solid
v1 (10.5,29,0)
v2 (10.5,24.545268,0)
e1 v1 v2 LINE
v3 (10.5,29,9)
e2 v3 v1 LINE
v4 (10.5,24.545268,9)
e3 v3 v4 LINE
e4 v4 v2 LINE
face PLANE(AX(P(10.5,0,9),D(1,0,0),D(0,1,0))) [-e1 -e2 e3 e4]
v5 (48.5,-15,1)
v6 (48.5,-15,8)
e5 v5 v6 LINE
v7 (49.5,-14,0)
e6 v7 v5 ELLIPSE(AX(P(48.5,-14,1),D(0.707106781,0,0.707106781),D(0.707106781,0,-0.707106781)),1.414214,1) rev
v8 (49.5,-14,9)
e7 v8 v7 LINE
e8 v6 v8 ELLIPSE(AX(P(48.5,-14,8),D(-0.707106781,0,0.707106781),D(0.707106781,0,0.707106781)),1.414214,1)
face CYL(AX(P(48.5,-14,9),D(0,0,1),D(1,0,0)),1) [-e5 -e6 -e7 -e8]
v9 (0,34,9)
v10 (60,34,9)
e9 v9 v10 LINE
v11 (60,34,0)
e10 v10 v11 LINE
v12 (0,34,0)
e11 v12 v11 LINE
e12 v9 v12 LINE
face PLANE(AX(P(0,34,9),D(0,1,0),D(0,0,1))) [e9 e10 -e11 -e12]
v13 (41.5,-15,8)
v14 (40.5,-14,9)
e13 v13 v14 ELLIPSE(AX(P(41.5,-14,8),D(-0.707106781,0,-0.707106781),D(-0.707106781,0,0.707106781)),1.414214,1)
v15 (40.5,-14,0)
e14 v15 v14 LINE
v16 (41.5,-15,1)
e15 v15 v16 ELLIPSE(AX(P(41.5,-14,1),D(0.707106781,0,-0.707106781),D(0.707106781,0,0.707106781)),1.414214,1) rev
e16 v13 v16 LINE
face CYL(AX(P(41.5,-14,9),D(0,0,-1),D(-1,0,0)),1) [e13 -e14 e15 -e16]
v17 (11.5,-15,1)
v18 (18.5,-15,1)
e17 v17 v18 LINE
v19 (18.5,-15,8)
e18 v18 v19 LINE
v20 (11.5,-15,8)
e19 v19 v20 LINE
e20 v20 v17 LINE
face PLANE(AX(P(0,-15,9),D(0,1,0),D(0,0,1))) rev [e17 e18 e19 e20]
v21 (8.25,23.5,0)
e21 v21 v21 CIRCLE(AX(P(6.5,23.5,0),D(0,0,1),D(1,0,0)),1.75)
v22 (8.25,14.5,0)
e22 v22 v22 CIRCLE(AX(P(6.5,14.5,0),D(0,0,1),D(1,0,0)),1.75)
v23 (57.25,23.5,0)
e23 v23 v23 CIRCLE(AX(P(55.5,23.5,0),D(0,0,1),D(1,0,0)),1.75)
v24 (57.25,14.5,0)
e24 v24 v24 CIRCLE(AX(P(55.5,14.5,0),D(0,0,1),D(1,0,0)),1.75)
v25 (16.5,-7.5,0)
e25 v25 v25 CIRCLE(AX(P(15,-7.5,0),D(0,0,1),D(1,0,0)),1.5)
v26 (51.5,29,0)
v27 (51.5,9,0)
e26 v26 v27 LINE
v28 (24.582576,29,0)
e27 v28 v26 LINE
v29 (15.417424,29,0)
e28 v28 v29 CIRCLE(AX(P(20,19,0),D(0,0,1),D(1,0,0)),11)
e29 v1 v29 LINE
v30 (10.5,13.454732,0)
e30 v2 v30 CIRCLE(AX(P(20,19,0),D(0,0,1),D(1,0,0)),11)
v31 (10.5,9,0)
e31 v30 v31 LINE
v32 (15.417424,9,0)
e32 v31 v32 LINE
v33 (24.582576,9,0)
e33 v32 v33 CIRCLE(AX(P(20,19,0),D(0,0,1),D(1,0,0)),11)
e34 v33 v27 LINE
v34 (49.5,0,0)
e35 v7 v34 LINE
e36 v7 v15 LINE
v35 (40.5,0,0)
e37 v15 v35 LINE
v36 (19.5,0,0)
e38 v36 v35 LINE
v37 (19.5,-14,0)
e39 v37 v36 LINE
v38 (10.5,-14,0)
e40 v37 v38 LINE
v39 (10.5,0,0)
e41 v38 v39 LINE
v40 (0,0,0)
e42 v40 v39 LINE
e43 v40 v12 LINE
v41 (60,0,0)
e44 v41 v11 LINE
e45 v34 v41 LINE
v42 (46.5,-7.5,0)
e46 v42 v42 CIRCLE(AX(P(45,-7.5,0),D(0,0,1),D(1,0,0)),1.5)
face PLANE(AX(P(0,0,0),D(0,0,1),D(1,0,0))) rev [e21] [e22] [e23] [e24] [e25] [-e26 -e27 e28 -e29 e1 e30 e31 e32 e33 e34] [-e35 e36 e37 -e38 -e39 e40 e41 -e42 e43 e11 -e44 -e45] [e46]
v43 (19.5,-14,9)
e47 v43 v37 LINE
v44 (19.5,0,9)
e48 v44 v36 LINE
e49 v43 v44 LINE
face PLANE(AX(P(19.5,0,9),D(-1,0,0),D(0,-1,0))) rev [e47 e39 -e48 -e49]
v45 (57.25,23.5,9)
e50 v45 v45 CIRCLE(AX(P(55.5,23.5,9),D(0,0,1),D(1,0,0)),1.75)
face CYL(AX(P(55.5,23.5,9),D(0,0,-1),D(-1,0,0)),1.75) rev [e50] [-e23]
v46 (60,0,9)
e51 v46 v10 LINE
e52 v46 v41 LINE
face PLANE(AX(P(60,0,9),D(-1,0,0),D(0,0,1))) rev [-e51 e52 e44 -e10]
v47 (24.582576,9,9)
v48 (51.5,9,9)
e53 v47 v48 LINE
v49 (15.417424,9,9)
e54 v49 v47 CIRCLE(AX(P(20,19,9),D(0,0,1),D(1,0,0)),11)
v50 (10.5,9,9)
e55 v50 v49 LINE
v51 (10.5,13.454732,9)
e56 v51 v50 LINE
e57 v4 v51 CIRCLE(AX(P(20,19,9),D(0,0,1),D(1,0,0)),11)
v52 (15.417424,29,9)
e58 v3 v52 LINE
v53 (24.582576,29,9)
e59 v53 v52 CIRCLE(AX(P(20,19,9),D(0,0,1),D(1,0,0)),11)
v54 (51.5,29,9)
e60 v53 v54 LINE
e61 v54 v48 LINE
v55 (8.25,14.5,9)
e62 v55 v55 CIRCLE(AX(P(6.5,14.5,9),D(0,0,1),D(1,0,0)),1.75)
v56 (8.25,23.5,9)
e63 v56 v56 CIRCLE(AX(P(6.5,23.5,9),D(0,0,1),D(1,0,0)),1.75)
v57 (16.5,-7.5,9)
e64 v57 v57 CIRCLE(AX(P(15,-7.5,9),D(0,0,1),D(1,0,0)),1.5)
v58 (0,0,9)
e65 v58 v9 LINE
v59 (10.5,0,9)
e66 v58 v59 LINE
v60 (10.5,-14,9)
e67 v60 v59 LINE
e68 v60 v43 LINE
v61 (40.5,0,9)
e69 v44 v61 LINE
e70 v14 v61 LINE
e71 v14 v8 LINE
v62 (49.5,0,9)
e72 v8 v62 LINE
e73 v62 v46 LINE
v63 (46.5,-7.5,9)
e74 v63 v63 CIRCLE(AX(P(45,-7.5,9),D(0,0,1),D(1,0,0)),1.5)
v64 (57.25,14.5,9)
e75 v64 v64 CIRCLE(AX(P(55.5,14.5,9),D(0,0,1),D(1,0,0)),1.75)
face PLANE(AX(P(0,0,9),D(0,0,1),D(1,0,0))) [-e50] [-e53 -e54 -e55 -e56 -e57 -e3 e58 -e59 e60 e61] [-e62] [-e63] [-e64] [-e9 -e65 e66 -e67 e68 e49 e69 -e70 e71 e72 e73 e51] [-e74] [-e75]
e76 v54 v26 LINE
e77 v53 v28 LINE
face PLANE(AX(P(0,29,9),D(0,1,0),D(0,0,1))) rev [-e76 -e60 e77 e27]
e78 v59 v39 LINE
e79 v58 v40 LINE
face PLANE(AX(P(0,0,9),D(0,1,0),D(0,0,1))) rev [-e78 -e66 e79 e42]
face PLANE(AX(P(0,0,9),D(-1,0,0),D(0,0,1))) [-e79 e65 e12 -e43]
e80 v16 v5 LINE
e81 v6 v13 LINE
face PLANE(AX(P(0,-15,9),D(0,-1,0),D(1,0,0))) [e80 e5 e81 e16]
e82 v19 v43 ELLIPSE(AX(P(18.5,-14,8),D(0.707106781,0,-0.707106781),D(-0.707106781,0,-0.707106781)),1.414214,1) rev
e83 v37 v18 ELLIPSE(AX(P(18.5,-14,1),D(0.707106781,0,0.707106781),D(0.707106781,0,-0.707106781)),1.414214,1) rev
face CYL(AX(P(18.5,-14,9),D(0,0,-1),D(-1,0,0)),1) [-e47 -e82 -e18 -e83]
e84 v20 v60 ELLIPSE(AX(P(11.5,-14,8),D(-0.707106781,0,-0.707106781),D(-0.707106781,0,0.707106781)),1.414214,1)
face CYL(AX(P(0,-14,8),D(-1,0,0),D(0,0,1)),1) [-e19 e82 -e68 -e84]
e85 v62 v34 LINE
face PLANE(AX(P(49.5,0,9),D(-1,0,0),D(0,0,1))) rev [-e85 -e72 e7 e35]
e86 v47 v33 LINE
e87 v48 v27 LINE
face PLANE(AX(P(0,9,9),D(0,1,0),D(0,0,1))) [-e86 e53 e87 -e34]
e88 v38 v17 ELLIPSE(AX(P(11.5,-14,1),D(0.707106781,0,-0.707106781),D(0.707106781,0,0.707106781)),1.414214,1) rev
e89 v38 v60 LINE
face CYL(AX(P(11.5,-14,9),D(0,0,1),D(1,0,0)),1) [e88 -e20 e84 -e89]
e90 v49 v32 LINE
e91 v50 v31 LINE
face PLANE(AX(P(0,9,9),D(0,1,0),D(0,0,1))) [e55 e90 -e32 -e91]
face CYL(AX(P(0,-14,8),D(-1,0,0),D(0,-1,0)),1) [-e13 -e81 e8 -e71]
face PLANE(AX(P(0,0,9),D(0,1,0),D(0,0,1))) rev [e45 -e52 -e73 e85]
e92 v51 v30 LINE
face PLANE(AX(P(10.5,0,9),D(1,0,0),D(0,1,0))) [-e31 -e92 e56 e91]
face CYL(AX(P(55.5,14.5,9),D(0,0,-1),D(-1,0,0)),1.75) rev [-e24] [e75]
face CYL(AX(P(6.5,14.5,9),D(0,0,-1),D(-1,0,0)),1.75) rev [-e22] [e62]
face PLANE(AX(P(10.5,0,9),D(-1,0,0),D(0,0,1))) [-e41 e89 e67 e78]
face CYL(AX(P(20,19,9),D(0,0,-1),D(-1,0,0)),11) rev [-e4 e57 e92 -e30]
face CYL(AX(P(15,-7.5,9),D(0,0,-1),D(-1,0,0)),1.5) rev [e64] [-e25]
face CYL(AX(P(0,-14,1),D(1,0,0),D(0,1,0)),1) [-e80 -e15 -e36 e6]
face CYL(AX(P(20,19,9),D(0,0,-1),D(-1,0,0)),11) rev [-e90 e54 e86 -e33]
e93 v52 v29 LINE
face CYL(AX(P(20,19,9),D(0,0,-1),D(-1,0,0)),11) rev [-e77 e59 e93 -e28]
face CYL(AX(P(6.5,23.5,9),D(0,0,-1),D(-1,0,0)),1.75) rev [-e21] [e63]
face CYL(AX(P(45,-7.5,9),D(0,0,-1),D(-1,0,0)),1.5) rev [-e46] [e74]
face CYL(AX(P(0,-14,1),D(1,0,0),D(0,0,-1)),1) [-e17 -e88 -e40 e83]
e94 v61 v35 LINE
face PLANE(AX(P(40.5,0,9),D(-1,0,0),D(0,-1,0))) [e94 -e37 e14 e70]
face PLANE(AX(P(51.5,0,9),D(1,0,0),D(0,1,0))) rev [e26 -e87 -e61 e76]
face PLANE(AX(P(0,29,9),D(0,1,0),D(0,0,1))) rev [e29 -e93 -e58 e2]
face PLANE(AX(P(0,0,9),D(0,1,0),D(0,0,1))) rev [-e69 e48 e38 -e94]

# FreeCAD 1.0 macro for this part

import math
import FreeCAD as App
import Part
import Sketcher
Q = App.Units.Quantity


def edges_at(feature, points):
    """Names of the edges that pass closest to the given points."""
    edges = feature.Shape.Edges
    near = lambda p: min(range(len(edges)), key=lambda i: edges[i].distToShape(Part.Vertex(*p))[0])
    return sorted({f"Edge{near(p) + 1}" for p in points})


def add_polygon(sketch, points):
    """Adds a closed chain of lines whose ends are joined by coincident constraints."""
    first, n = sketch.GeometryCount, len(points)
    for a, b in zip(points, points[1:] + points[:1]):
        sketch.addGeometry(Part.LineSegment(App.Vector(*a, 0), App.Vector(*b, 0)), False)
    for i in range(n):
        sketch.addConstraint(Sketcher.Constraint("Coincident", first + i, 2, first + (i + 1) % n, 1))

doc = App.newDocument("Part")
params = doc.addObject("Spreadsheet::Sheet", "Params")
for row, (alias, value) in enumerate([
    ("sketch1_diameter", "3 mm"),
    ("sketch1_radius", "11 mm"),
    ("sketch1_diameter2", "3.5 mm"),
    ("sketch1_width", "9 mm"),
    ("sketch1_width2", "21 mm"),
    ("pad1_length", "9 mm"),
    ("fillet_radius", "1 mm"),
], start=1):
    params.set(f"A{row}", alias)
    params.set(f"B{row}", "=" + value)
    params.setAlias(f"B{row}", alias)

body = doc.addObject("PartDesign::Body", "Body")

# Sketch on XY plane
sketch1 = body.newObject("Sketcher::SketchObject", "Sketch")
sketch1.AttachmentSupport = (doc.getObject("XY_Plane"), [""])
sketch1.MapMode = "FlatFace"
add_polygon(sketch1, [(0, 34), (0, 0), (10.5, 0), (10.5, -15), (19.5, -15), (19.5, 0), (40.5, 0), (40.5, -15), (49.5, -15), (49.5, 0), (60, 0), (60, 34)])  # lines 0-11
sketch1.addGeometry(Part.Circle(App.Vector(15, -7.5, 0), App.Vector(0, 0, 1), 1.5), False)  # 12
sketch1.addGeometry(Part.Circle(App.Vector(45, -7.5, 0), App.Vector(0, 0, 1), 1.5), False)  # 13
sketch1.addGeometry(Part.Circle(App.Vector(6.5, 14.5, 0), App.Vector(0, 0, 1), 1.75), False)  # 14
sketch1.addGeometry(Part.ArcOfCircle(Part.Circle(App.Vector(20, 19, 0), App.Vector(0, 0, 1), 11), math.radians(149.727359), math.radians(210.272641)), False)  # 15
sketch1.addGeometry(Part.LineSegment(App.Vector(10.5, 24.545268, 0), App.Vector(10.5, 29, 0)), False)  # 16
sketch1.addGeometry(Part.LineSegment(App.Vector(10.5, 29, 0), App.Vector(15.417424, 29, 0)), False)  # 17
sketch1.addGeometry(Part.ArcOfCircle(Part.Circle(App.Vector(20, 19, 0), App.Vector(0, 0, 1), 11), math.radians(65.380023), math.radians(114.619977)), False)  # 18
sketch1.addGeometry(Part.LineSegment(App.Vector(24.582576, 29, 0), App.Vector(51.5, 29, 0)), False)  # 19
sketch1.addGeometry(Part.LineSegment(App.Vector(51.5, 29, 0), App.Vector(51.5, 9, 0)), False)  # 20
sketch1.addGeometry(Part.LineSegment(App.Vector(51.5, 9, 0), App.Vector(24.582576, 9, 0)), False)  # 21
sketch1.addGeometry(Part.ArcOfCircle(Part.Circle(App.Vector(20, 19, 0), App.Vector(0, 0, 1), 11), math.radians(-114.619977), math.radians(-65.380023)), False)  # 22
sketch1.addGeometry(Part.LineSegment(App.Vector(15.417424, 9, 0), App.Vector(10.5, 9, 0)), False)  # 23
sketch1.addGeometry(Part.LineSegment(App.Vector(10.5, 9, 0), App.Vector(10.5, 13.454732, 0)), False)  # 24
sketch1.addGeometry(Part.Circle(App.Vector(6.5, 23.5, 0), App.Vector(0, 0, 1), 1.75), False)  # 25
sketch1.addGeometry(Part.Circle(App.Vector(55.5, 14.5, 0), App.Vector(0, 0, 1), 1.75), False)  # 26
sketch1.addGeometry(Part.Circle(App.Vector(55.5, 23.5, 0), App.Vector(0, 0, 1), 1.75), False)  # 27
sketch1.addConstraint(Sketcher.Constraint("Coincident", 15, 1, 16, 1))
sketch1.addConstraint(Sketcher.Constraint("Coincident", 16, 2, 17, 1))
sketch1.addConstraint(Sketcher.Constraint("Coincident", 17, 2, 18, 2))
sketch1.addConstraint(Sketcher.Constraint("Coincident", 18, 1, 19, 1))
sketch1.addConstraint(Sketcher.Constraint("Coincident", 19, 2, 20, 1))
sketch1.addConstraint(Sketcher.Constraint("Coincident", 20, 2, 21, 1))
sketch1.addConstraint(Sketcher.Constraint("Coincident", 21, 2, 22, 2))
sketch1.addConstraint(Sketcher.Constraint("Coincident", 22, 1, 23, 1))
sketch1.addConstraint(Sketcher.Constraint("Coincident", 23, 2, 24, 1))
sketch1.addConstraint(Sketcher.Constraint("Coincident", 24, 2, 15, 2))
sketch1.addConstraint(Sketcher.Constraint("Vertical", 0))
sketch1.addConstraint(Sketcher.Constraint("Horizontal", 1))
sketch1.addConstraint(Sketcher.Constraint("Vertical", 2))
sketch1.addConstraint(Sketcher.Constraint("Horizontal", 3))
sketch1.addConstraint(Sketcher.Constraint("Vertical", 4))
sketch1.addConstraint(Sketcher.Constraint("Horizontal", 5))
sketch1.addConstraint(Sketcher.Constraint("Vertical", 6))
sketch1.addConstraint(Sketcher.Constraint("Horizontal", 7))
sketch1.addConstraint(Sketcher.Constraint("Vertical", 8))
sketch1.addConstraint(Sketcher.Constraint("Horizontal", 9))
sketch1.addConstraint(Sketcher.Constraint("Vertical", 10))
sketch1.addConstraint(Sketcher.Constraint("Horizontal", 11))
sketch1.addConstraint(Sketcher.Constraint("Vertical", 16))
sketch1.addConstraint(Sketcher.Constraint("Horizontal", 17))
sketch1.addConstraint(Sketcher.Constraint("Horizontal", 19))
sketch1.addConstraint(Sketcher.Constraint("Vertical", 20))
sketch1.addConstraint(Sketcher.Constraint("Horizontal", 21))
sketch1.addConstraint(Sketcher.Constraint("Horizontal", 23))
sketch1.addConstraint(Sketcher.Constraint("Vertical", 24))
sketch1.addConstraint(Sketcher.Constraint("Coincident", 0, 2, -1, 1))
sketch1.addConstraint(Sketcher.Constraint("Coincident", 18, 3, 15, 3))
sketch1.addConstraint(Sketcher.Constraint("Coincident", 22, 3, 15, 3))
sketch1.addConstraint(Sketcher.Constraint("Equal", 12, 13))
sketch1.addConstraint(Sketcher.Constraint("Equal", 15, 18))
sketch1.addConstraint(Sketcher.Constraint("Equal", 18, 22))
sketch1.addConstraint(Sketcher.Constraint("Equal", 14, 25))
sketch1.addConstraint(Sketcher.Constraint("Equal", 25, 26))
sketch1.addConstraint(Sketcher.Constraint("Equal", 26, 27))
sketch1.addConstraint(Sketcher.Constraint("PointOnObject", 4, 2, -1))
sketch1.addConstraint(Sketcher.Constraint("PointOnObject", 8, 2, -1))
sketch1.addConstraint(Sketcher.Constraint("Horizontal", 12, 3, 13, 3))
sketch1.addConstraint(Sketcher.Constraint("Horizontal", 14, 3, 26, 3))
sketch1.addConstraint(Sketcher.Constraint("Horizontal", 25, 3, 27, 3))
sketch1.addConstraint(Sketcher.Constraint("Horizontal", 3, 2, 6, 2))
sketch1.addConstraint(Sketcher.Constraint("Horizontal", 17, 2, 18, 1))
sketch1.addConstraint(Sketcher.Constraint("Horizontal", 21, 2, 22, 1))
sketch1.addConstraint(Sketcher.Constraint("Vertical", 14, 3, 25, 3))
sketch1.addConstraint(Sketcher.Constraint("Vertical", 26, 3, 27, 3))
sketch1.addConstraint(Sketcher.Constraint("Vertical", 2, 2, 15, 1))
sketch1.addConstraint(Sketcher.Constraint("Vertical", 18, 1, 21, 2))
sketch1.addConstraint(Sketcher.Constraint("Vertical", 16, 2, 23, 2))
sketch1.addConstraint(Sketcher.Constraint("Equal", 3, 7))
sketch1.addConstraint(Sketcher.Constraint("Equal", 1, 9))
sketch1.addConstraint(Sketcher.Constraint("Diameter", 12, Q("3 mm")))
sketch1.addConstraint(Sketcher.Constraint("Radius", 15, Q("11 mm")))
sketch1.addConstraint(Sketcher.Constraint("Diameter", 14, Q("3.5 mm")))
sketch1.addConstraint(Sketcher.Constraint("DistanceX", 3, 1, 3, 2, Q("9 mm")))
sketch1.addConstraint(Sketcher.Constraint("DistanceX", 5, 1, 5, 2, Q("21 mm")))
sketch1.addConstraint(Sketcher.Constraint("DistanceX", 11, 2, 11, 1, Q("60 mm")))
sketch1.addConstraint(Sketcher.Constraint("DistanceY", 0, 2, 0, 1, Q("34 mm")))
sketch1.addConstraint(Sketcher.Constraint("DistanceY", 2, 2, 2, 1, Q("15 mm")))
sketch1.addConstraint(Sketcher.Constraint("DistanceY", 20, 2, 20, 1, Q("20 mm")))
sketch1.addConstraint(Sketcher.Constraint("DistanceX", -1, 1, 12, 3, Q("15 mm")))
sketch1.addConstraint(Sketcher.Constraint("DistanceX", -1, 1, 13, 3, Q("45 mm")))
sketch1.addConstraint(Sketcher.Constraint("DistanceX", -1, 1, 15, 3, Q("20 mm")))
sketch1.addConstraint(Sketcher.Constraint("DistanceY", -1, 1, 15, 3, Q("19 mm")))
sketch1.addConstraint(Sketcher.Constraint("DistanceY", 12, 3, 14, 3, Q("22 mm")))
sketch1.addConstraint(Sketcher.Constraint("DistanceY", 14, 3, 25, 3, Q("9 mm")))
sketch1.addConstraint(Sketcher.Constraint("DistanceX", 14, 3, 1, 2, Q("4 mm")))
sketch1.addConstraint(Sketcher.Constraint("DistanceX", 5, 2, 26, 3, Q("15 mm")))
sketch1.addConstraint(Sketcher.Constraint("DistanceX", 19, 2, 27, 3, Q("4 mm")))
sketch1.addConstraint(Sketcher.Constraint("DistanceY", 12, 3, -1, 1, Q("7.5 mm")))
sketch1.setExpression("Constraints[65]", "Params.sketch1_diameter")
sketch1.setExpression("Constraints[66]", "Params.sketch1_radius")
sketch1.setExpression("Constraints[67]", "Params.sketch1_diameter2")
sketch1.setExpression("Constraints[68]", "Params.sketch1_width")
sketch1.setExpression("Constraints[69]", "Params.sketch1_width2")
pad1 = body.newObject("PartDesign::Pad", "Pad")
pad1.Profile = sketch1
pad1.setExpression("Length", "Params.pad1_length")
doc.recompute()

fillet = body.newObject("PartDesign::Fillet", "Fillet")
fillet.Base = (pad1, edges_at(pad1, [
    (45, -15, 0),
    (15, -15, 0),
    (49.5, -15, 4.5),
    (40.5, -15, 4.5),
    (19.5, -15, 4.5),
    (10.5, -15, 4.5),
    (15, -15, 9),
    (45, -15, 9),
]))
fillet.setExpression("Radius", "Params.fillet_radius")

doc.recompute()
